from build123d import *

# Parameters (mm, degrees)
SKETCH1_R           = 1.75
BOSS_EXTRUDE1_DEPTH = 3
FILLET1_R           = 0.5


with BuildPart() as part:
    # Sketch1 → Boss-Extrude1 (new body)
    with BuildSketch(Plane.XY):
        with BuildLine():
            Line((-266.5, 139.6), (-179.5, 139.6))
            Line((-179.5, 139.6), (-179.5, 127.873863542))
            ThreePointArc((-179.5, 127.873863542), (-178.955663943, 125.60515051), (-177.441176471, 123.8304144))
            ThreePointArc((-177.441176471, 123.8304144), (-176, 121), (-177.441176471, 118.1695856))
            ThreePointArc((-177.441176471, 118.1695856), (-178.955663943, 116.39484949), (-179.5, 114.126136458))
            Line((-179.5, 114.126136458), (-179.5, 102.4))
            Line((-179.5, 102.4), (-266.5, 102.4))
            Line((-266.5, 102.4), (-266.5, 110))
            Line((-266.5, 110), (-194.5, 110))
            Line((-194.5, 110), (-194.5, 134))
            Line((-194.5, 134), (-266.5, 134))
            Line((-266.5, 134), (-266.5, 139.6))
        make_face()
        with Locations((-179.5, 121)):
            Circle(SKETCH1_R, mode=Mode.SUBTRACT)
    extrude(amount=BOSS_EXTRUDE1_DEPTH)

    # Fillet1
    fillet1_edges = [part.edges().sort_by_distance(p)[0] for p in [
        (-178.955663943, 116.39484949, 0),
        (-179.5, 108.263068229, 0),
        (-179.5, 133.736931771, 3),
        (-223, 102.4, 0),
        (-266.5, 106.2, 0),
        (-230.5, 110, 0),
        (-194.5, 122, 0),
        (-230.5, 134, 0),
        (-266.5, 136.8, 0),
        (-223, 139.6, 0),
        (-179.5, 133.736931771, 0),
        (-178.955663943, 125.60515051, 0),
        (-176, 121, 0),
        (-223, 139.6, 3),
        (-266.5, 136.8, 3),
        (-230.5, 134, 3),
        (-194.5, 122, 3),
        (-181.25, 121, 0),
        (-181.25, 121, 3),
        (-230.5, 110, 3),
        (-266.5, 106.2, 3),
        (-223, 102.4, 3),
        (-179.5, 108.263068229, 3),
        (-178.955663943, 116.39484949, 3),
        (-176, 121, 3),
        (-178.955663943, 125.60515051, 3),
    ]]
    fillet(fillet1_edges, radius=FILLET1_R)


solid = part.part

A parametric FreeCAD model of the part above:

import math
import FreeCAD as App
import Part
import Sketcher
Q = App.Units.Quantity


def edges_at(feature, points):
    """Names of the edges that pass closest to the given points."""
    edges = feature.Shape.Edges
    near = lambda p: min(range(len(edges)), key=lambda i: edges[i].distToShape(Part.Vertex(*p))[0])
    return sorted({f"Edge{near(p) + 1}" for p in points})

doc = App.newDocument("Part")
body = doc.addObject("PartDesign::Body", "Body")

# Sketch on XY plane
sketch1 = body.newObject("Sketcher::SketchObject", "Sketch")
sketch1.AttachmentSupport = (doc.getObject("XY_Plane"), [""])
sketch1.MapMode = "FlatFace"
sketch1.addGeometry([
    Part.LineSegment(App.Vector(-179.5, 139.6, 0), App.Vector(-266.5, 139.6, 0)),  # 0
    Part.LineSegment(App.Vector(-266.5, 139.6, 0), App.Vector(-266.5, 134, 0)),  # 1
    Part.LineSegment(App.Vector(-266.5, 134, 0), App.Vector(-194.5, 134, 0)),  # 2
    Part.LineSegment(App.Vector(-194.5, 134, 0), App.Vector(-194.5, 110, 0)),  # 3
    Part.LineSegment(App.Vector(-194.5, 110, 0), App.Vector(-266.5, 110, 0)),  # 4
    Part.LineSegment(App.Vector(-266.5, 110, 0), App.Vector(-266.5, 102.4, 0)),  # 5
    Part.LineSegment(App.Vector(-266.5, 102.4, 0), App.Vector(-179.5, 102.4, 0)),  # 6
    Part.LineSegment(App.Vector(-179.5, 102.4, 0), App.Vector(-179.5, 114.1, 0)),  # 7
    Part.ArcOfCircle(Part.Circle(App.Vector(-174.5, 114.1, 0), App.Vector(0, 0, 1), 5), math.radians(126), math.radians(180)),  # 8
    Part.ArcOfCircle(Part.Circle(App.Vector(-179.5, 121, 0), App.Vector(0, 0, 1), 3.5), math.radians(-54), math.radians(54)),  # 9
    Part.ArcOfCircle(Part.Circle(App.Vector(-174.5, 127.9, 0), App.Vector(0, 0, 1), 5), math.radians(-180), math.radians(-126)),  # 10
    Part.LineSegment(App.Vector(-179.5, 127.9, 0), App.Vector(-179.5, 139.6, 0)),  # 11
    Part.Circle(App.Vector(-179.5, 121, 0), App.Vector(0, 0, 1), 1.8),  # 12
], False)
sketch1.addConstraint([
    Sketcher.Constraint("Coincident", 0, 2, 1, 1),
    Sketcher.Constraint("Coincident", 1, 2, 2, 1),
    Sketcher.Constraint("Coincident", 2, 2, 3, 1),
    Sketcher.Constraint("Coincident", 3, 2, 4, 1),
    Sketcher.Constraint("Coincident", 4, 2, 5, 1),
    Sketcher.Constraint("Coincident", 5, 2, 6, 1),
    Sketcher.Constraint("Coincident", 6, 2, 7, 1),
    Sketcher.Constraint("Tangent", 7, 2, 8, 2),
    Sketcher.Constraint("Tangent", 8, 1, 9, 1),
    Sketcher.Constraint("Tangent", 9, 2, 10, 2),
    Sketcher.Constraint("Tangent", 10, 1, 11, 1),
    Sketcher.Constraint("Coincident", 11, 2, 0, 1),
    Sketcher.Constraint("Horizontal", 0),
    Sketcher.Constraint("Vertical", 1),
    Sketcher.Constraint("Horizontal", 2),
    Sketcher.Constraint("Vertical", 3),
    Sketcher.Constraint("Horizontal", 4),
    Sketcher.Constraint("Vertical", 5),
    Sketcher.Constraint("Horizontal", 6),
    Sketcher.Constraint("Vertical", 7),
    Sketcher.Constraint("Vertical", 11),
    Sketcher.Constraint("Coincident", 12, 3, 9, 3),
    Sketcher.Constraint("Equal", 8, 10),
    Sketcher.Constraint("Vertical", 8, 3, 10, 3),
    Sketcher.Constraint("Vertical", 1, 2, 4, 2),
    Sketcher.Constraint("Vertical", 12, 3, 6, 2),
    Sketcher.Constraint("Equal", 7, 11),
    Sketcher.Constraint("Radius", 8, Q("5 mm")),
    Sketcher.Constraint("Diameter", 12, Q("3.5 mm")),
    Sketcher.Constraint("Radius", 9, Q("3.5 mm")),
    Sketcher.Constraint("DistanceX", 0, 2, 0, 1, Q("87 mm")),
    Sketcher.Constraint("DistanceX", 2, 1, 2, 2, Q("72 mm")),
    Sketcher.Constraint("DistanceY", 3, 2, 3, 1, Q("24 mm")),
    Sketcher.Constraint("DistanceY", 1, 2, 1, 1, Q("5.6 mm")),
    Sketcher.Constraint("DistanceY", 5, 2, 5, 1, Q("7.6 mm")),
    Sketcher.Constraint("DistanceY", -1, 1, 9, 3, Q("121 mm")),
    Sketcher.Constraint("DistanceX", 8, 3, -1, 1, Q("174.5 mm")),
])
pad1 = body.newObject("PartDesign::Pad", "Pad")
pad1.Profile = sketch1
pad1.Length = 3
doc.recompute()

fillet = body.newObject("PartDesign::Fillet", "Fillet")
fillet.Base = (pad1, edges_at(pad1, [
    (-178.956, 116.395, 0),
    (-179.5, 108.263, 0),
    (-179.5, 133.737, 3),
    (-223, 102.4, 0),
    (-266.5, 106.2, 0),
    (-230.5, 110, 0),
    (-194.5, 122, 0),
    (-230.5, 134, 0),
    (-266.5, 136.8, 0),
    (-223, 139.6, 0),
    (-179.5, 133.737, 0),
    (-178.956, 125.605, 0),
    (-176, 121, 0),
    (-223, 139.6, 3),
    (-266.5, 136.8, 3),
    (-230.5, 134, 3),
    (-194.5, 122, 3),
    (-181.25, 121, 0),
    (-181.25, 121, 3),
    (-230.5, 110, 3),
    (-266.5, 106.2, 3),
    (-223, 102.4, 3),
    (-179.5, 108.263, 3),
    (-178.956, 116.395, 3),
    (-176, 121, 3),
    (-178.956, 125.605, 3),
]))
fillet.Radius = 0.5

doc.recompute()
